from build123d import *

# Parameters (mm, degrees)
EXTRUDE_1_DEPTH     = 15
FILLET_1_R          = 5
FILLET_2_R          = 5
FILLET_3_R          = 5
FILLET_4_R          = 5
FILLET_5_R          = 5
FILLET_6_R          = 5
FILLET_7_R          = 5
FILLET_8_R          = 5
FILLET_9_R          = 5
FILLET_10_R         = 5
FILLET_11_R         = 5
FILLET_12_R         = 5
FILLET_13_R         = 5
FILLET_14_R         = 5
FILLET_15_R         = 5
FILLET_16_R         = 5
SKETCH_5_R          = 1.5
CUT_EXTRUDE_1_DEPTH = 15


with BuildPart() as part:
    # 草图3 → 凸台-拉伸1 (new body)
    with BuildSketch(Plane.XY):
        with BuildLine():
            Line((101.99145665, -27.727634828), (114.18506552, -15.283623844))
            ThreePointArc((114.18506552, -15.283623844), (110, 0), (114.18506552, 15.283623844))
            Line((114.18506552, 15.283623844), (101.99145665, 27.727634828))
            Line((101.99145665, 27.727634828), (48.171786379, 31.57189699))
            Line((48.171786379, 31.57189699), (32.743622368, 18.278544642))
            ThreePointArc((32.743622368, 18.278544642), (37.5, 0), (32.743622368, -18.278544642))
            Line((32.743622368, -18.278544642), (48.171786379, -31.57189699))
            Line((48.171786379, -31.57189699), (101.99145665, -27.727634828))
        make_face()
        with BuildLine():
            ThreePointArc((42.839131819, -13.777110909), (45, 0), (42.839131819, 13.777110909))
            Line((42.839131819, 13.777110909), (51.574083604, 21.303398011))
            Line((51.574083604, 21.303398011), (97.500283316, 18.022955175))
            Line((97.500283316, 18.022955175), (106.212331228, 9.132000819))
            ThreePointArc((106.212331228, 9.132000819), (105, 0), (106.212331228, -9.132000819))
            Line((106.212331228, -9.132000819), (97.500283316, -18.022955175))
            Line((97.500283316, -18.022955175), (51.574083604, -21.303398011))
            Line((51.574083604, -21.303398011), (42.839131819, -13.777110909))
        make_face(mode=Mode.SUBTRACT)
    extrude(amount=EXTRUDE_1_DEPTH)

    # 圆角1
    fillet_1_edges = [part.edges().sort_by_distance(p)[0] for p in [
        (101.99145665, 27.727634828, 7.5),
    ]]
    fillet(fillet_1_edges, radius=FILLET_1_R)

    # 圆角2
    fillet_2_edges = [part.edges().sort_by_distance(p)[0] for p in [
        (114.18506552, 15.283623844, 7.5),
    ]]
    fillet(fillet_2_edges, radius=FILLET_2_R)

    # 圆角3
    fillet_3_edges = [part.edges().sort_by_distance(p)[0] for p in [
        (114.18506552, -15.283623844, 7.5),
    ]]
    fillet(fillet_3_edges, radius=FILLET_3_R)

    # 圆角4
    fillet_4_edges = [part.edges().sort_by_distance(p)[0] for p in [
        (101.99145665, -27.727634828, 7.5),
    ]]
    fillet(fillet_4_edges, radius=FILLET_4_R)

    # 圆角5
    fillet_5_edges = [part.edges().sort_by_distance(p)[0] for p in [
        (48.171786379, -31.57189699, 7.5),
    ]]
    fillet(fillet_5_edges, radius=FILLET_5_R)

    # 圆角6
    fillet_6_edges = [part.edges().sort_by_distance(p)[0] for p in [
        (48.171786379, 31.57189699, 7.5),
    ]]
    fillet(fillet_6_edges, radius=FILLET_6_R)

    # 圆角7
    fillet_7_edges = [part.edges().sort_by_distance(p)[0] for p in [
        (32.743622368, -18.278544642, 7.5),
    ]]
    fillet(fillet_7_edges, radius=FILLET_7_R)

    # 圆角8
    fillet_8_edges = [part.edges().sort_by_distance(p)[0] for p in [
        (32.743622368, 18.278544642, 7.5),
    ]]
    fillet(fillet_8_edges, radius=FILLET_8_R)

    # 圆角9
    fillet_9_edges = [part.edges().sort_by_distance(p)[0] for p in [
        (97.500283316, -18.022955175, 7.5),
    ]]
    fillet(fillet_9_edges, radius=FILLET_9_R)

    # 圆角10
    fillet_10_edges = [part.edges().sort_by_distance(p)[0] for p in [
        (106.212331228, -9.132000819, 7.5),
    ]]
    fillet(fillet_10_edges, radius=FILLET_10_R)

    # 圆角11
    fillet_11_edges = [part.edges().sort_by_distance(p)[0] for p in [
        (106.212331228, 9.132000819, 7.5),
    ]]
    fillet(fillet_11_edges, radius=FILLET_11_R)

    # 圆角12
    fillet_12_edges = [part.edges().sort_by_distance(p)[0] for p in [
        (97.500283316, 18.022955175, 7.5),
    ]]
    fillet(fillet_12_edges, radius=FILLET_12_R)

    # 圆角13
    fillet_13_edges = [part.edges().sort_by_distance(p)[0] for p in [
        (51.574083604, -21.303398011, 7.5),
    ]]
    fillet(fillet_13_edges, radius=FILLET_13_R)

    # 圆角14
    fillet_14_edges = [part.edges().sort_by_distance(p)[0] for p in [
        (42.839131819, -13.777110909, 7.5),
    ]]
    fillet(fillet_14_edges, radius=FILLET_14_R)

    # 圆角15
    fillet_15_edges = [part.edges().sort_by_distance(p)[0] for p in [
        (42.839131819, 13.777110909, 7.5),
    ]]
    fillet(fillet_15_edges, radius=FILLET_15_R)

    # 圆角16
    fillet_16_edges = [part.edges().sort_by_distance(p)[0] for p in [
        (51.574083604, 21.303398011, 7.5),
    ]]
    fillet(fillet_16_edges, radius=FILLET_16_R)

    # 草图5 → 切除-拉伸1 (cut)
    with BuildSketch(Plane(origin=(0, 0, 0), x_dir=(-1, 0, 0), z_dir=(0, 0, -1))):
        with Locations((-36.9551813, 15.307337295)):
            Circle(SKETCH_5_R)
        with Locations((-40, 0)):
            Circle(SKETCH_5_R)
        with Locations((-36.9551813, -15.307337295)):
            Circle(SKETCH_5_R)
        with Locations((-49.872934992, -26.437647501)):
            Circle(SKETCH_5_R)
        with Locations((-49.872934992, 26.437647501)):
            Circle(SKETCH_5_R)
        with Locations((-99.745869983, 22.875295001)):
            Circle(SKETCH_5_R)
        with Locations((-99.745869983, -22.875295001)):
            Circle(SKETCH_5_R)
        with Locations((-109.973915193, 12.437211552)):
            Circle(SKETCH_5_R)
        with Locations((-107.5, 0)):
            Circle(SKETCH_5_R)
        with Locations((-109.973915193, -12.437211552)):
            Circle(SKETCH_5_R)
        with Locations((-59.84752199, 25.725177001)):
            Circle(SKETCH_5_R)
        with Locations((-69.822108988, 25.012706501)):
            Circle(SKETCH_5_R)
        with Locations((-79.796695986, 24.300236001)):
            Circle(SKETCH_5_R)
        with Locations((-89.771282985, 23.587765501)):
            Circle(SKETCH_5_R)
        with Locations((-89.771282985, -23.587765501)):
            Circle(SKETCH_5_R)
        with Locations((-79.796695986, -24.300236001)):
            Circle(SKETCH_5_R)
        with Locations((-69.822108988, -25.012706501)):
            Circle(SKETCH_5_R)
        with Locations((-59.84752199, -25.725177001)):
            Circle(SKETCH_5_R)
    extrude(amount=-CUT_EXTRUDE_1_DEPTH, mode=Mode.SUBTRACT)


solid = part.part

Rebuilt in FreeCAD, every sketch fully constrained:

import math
import FreeCAD as App
import Part
import Sketcher

V = App.Vector
Q = App.Units.Quantity


def edges_at(feature, points):
    """Names of the edges that pass closest to the given points."""
    edges = feature.Shape.Edges
    near = lambda p: min(range(len(edges)), key=lambda i: edges[i].distToShape(Part.Vertex(*p))[0])
    return sorted({f"Edge{near(p) + 1}" for p in points})

doc = App.newDocument("Part")
body = doc.addObject("PartDesign::Body", "Body")

# Sketch on XY plane
sketch1 = doc.addObject("Sketcher::SketchObject", "Sketch")
body.addObject(sketch1)
sketch1.AttachmentSupport = (doc.XY_Plane, [""])
sketch1.MapMode = "FlatFace"
sketch1.addGeometry([
    Part.LineSegment(V(102, -28, 0), V(114, -15, 0)),  # 0
    Part.ArcOfCircle(Part.Circle(V(140, 0, 0), V(0, 0, 1), 30), math.radians(149), math.radians(211)),  # 1
    Part.LineSegment(V(114, 15, 0), V(102, 28, 0)),  # 2
    Part.LineSegment(V(102, 28, 0), V(48, 32, 0)),  # 3
    Part.LineSegment(V(48, 32, 0), V(33, 18, 0)),  # 4
    Part.ArcOfCircle(Part.Circle(V(0, 0, 0), V(0, 0, 1), 38), math.radians(-29), math.radians(29)),  # 5
    Part.LineSegment(V(33, -18, 0), V(48, -32, 0)),  # 6
    Part.LineSegment(V(48, -32, 0), V(102, -28, 0)),  # 7
    Part.LineSegment(V(52, -21, 0), V(43, -14, 0)),  # 8
    Part.ArcOfCircle(Part.Circle(V(0, 0, 0), V(0, 0, 1), 45), math.radians(-18), math.radians(18)),  # 9
    Part.LineSegment(V(43, 14, 0), V(52, 21, 0)),  # 10
    Part.LineSegment(V(52, 21, 0), V(98, 18, 0)),  # 11
    Part.LineSegment(V(98, 18, 0), V(106, 9, 0)),  # 12
    Part.ArcOfCircle(Part.Circle(V(140, 0, 0), V(0, 0, 1), 35), math.radians(165), math.radians(195)),  # 13
    Part.LineSegment(V(106, -9, 0), V(98, -18, 0)),  # 14
    Part.LineSegment(V(98, -18, 0), V(52, -21, 0)),  # 15
], False)
sketch1.addConstraint([
    Sketcher.Constraint("Coincident", 0, 2, 1, 2),
    Sketcher.Constraint("Coincident", 1, 1, 2, 1),
    Sketcher.Constraint("Coincident", 2, 2, 3, 1),
    Sketcher.Constraint("Coincident", 3, 2, 4, 1),
    Sketcher.Constraint("Coincident", 4, 2, 5, 2),
    Sketcher.Constraint("Coincident", 5, 1, 6, 1),
    Sketcher.Constraint("Coincident", 6, 2, 7, 1),
    Sketcher.Constraint("Coincident", 7, 2, 0, 1),
    Sketcher.Constraint("Coincident", 8, 2, 9, 1),
    Sketcher.Constraint("Coincident", 9, 2, 10, 1),
    Sketcher.Constraint("Coincident", 10, 2, 11, 1),
    Sketcher.Constraint("Coincident", 11, 2, 12, 1),
    Sketcher.Constraint("Coincident", 12, 2, 13, 1),
    Sketcher.Constraint("Coincident", 13, 2, 14, 1),
    Sketcher.Constraint("Coincident", 14, 2, 15, 1),
    Sketcher.Constraint("Coincident", 15, 2, 8, 1),
    Sketcher.Constraint("Coincident", 5, 3, -1, 1),
    Sketcher.Constraint("Coincident", 9, 3, -1, 1),
    Sketcher.Constraint("Coincident", 13, 3, 1, 3),
    Sketcher.Constraint("Symmetric", 0, 2, 1, 1, -1),
    Sketcher.Constraint("Symmetric", 3, 2, 6, 2, -1),
    Sketcher.Constraint("Symmetric", 2, 2, 7, 2, -1),
    Sketcher.Constraint("Symmetric", 11, 2, 14, 2, -1),
    Sketcher.Constraint("Symmetric", 10, 2, 15, 2, -1),
    Sketcher.Constraint("Parallel", 6, 8),
    Sketcher.Constraint("Parallel", 4, 10),
    Sketcher.Constraint("Parallel", 3, 11),
    Sketcher.Constraint("Parallel", 2, 12),
    Sketcher.Constraint("Parallel", 0, 14),
    Sketcher.Constraint("Vertical", 4, 2, 5, 1),
    Sketcher.Constraint("Radius", 1, Q("30 mm")),
    Sketcher.Constraint("Radius", 9, Q("45 mm")),
    Sketcher.Constraint("Radius", 13, Q("35 mm")),
    Sketcher.Constraint("Radius", 5, Q("37.5 mm")),
    Sketcher.Constraint("DistanceX", -1, 1, 1, 3, Q("140 mm")),
    Sketcher.Constraint("DistanceY", -1, 1, 12, 2, Q("9.132001 mm")),
    Sketcher.Constraint("DistanceY", -1, 1, 10, 2, Q("21.303398 mm")),
    Sketcher.Constraint("DistanceY", 10, 2, 3, 2, Q("10.268499 mm")),
    Sketcher.Constraint("DistanceX", 10, 2, 11, 2, Q("45.9262 mm")),
    Sketcher.Constraint("Distance", 3, Q("53.956791 mm")),
    Sketcher.Constraint("Distance", 8, Q("11.530151 mm")),
    Sketcher.Constraint("Distance", 11, Q("46.043209 mm")),
    Sketcher.Constraint("DistanceX", -1, 1, 8, 2, Q("42.839132 mm")),
    Sketcher.Constraint("DistanceX", 2, 2, 1, 1, Q("12.193609 mm")),
])
pad1 = doc.addObject("PartDesign::Pad", "Pad")
body.addObject(pad1)
pad1.Profile = sketch1
pad1.Length = 15
doc.recompute()

fillet = doc.addObject("PartDesign::Fillet", "Fillet")
body.addObject(fillet)
fillet.Base = (pad1, edges_at(pad1, [(101.991, 27.728, 7.5)]))
fillet.Radius = 5
doc.recompute()

fillet2 = doc.addObject("PartDesign::Fillet", "Fillet001")
body.addObject(fillet2)
fillet2.Base = (fillet, edges_at(fillet, [(114.185, 15.284, 7.5)]))
fillet2.Radius = 5
doc.recompute()

fillet3 = doc.addObject("PartDesign::Fillet", "Fillet002")
body.addObject(fillet3)
fillet3.Base = (fillet2, edges_at(fillet2, [(114.185, -15.284, 7.5)]))
fillet3.Radius = 5
doc.recompute()

fillet4 = doc.addObject("PartDesign::Fillet", "Fillet003")
body.addObject(fillet4)
fillet4.Base = (fillet3, edges_at(fillet3, [(101.991, -27.728, 7.5)]))
fillet4.Radius = 5
doc.recompute()

fillet5 = doc.addObject("PartDesign::Fillet", "Fillet004")
body.addObject(fillet5)
fillet5.Base = (fillet4, edges_at(fillet4, [(48.172, -31.572, 7.5)]))
fillet5.Radius = 5
doc.recompute()

fillet6 = doc.addObject("PartDesign::Fillet", "Fillet005")
body.addObject(fillet6)
fillet6.Base = (fillet5, edges_at(fillet5, [(48.172, 31.572, 7.5)]))
fillet6.Radius = 5
doc.recompute()

fillet7 = doc.addObject("PartDesign::Fillet", "Fillet006")
body.addObject(fillet7)
fillet7.Base = (fillet6, edges_at(fillet6, [(32.744, -18.279, 7.5)]))
fillet7.Radius = 5
doc.recompute()

fillet8 = doc.addObject("PartDesign::Fillet", "Fillet007")
body.addObject(fillet8)
fillet8.Base = (fillet7, edges_at(fillet7, [(32.744, 18.279, 7.5)]))
fillet8.Radius = 5
doc.recompute()

fillet9 = doc.addObject("PartDesign::Fillet", "Fillet008")
body.addObject(fillet9)
fillet9.Base = (fillet8, edges_at(fillet8, [(97.5, -18.023, 7.5)]))
fillet9.Radius = 5
doc.recompute()

fillet10 = doc.addObject("PartDesign::Fillet", "Fillet009")
body.addObject(fillet10)
fillet10.Base = (fillet9, edges_at(fillet9, [(106.212, -9.132, 7.5)]))
fillet10.Radius = 5
doc.recompute()

fillet11 = doc.addObject("PartDesign::Fillet", "Fillet010")
body.addObject(fillet11)
fillet11.Base = (fillet10, edges_at(fillet10, [(106.212, 9.132, 7.5)]))
fillet11.Radius = 5
doc.recompute()

fillet12 = doc.addObject("PartDesign::Fillet", "Fillet011")
body.addObject(fillet12)
fillet12.Base = (fillet11, edges_at(fillet11, [(97.5, 18.023, 7.5)]))
fillet12.Radius = 5
doc.recompute()

fillet13 = doc.addObject("PartDesign::Fillet", "Fillet012")
body.addObject(fillet13)
fillet13.Base = (fillet12, edges_at(fillet12, [(51.574, -21.303, 7.5)]))
fillet13.Radius = 5
doc.recompute()

fillet14 = doc.addObject("PartDesign::Fillet", "Fillet013")
body.addObject(fillet14)
fillet14.Base = (fillet13, edges_at(fillet13, [(42.839, -13.777, 7.5)]))
fillet14.Radius = 5
doc.recompute()

fillet15 = doc.addObject("PartDesign::Fillet", "Fillet014")
body.addObject(fillet15)
fillet15.Base = (fillet14, edges_at(fillet14, [(42.839, 13.777, 7.5)]))
fillet15.Radius = 5
doc.recompute()

fillet16 = doc.addObject("PartDesign::Fillet", "Fillet015")
body.addObject(fillet16)
fillet16.Base = (fillet15, edges_at(fillet15, [(51.574, 21.303, 7.5)]))
fillet16.Radius = 5

# Sketch on XY plane
sketch2 = doc.addObject("Sketcher::SketchObject", "Sketch001")
body.addObject(sketch2)
sketch2.AttachmentSupport = (doc.XY_Plane, [""])
sketch2.MapMode = "FlatFace"
sketch2.addGeometry([
    Part.Circle(V(37, 15.3, 0), V(0, 0, 1), 1.5),  # 0
    Part.Circle(V(40, 0, 0), V(0, 0, 1), 1.5),  # 1
    Part.Circle(V(37, -15.3, 0), V(0, 0, 1), 1.5),  # 2
    Part.Circle(V(49.9, -26.4, 0), V(0, 0, 1), 1.5),  # 3
    Part.Circle(V(49.9, 26.4, 0), V(0, 0, 1), 1.5),  # 4
    Part.Circle(V(99.7, 22.9, 0), V(0, 0, 1), 1.5),  # 5
    Part.Circle(V(99.7, -22.9, 0), V(0, 0, 1), 1.5),  # 6
    Part.Circle(V(110, 12.4, 0), V(0, 0, 1), 1.5),  # 7
    Part.Circle(V(107.5, 0, 0), V(0, 0, 1), 1.5),  # 8
    Part.Circle(V(110, -12.4, 0), V(0, 0, 1), 1.5),  # 9
    Part.Circle(V(59.8, 25.7, 0), V(0, 0, 1), 1.5),  # 10
    Part.Circle(V(69.8, 25, 0), V(0, 0, 1), 1.5),  # 11
    Part.Circle(V(79.8, 24.3, 0), V(0, 0, 1), 1.5),  # 12
    Part.Circle(V(89.8, 23.6, 0), V(0, 0, 1), 1.5),  # 13
    Part.Circle(V(89.8, -23.6, 0), V(0, 0, 1), 1.5),  # 14
    Part.Circle(V(79.8, -24.3, 0), V(0, 0, 1), 1.5),  # 15
    Part.Circle(V(69.8, -25, 0), V(0, 0, 1), 1.5),  # 16
    Part.Circle(V(59.8, -25.7, 0), V(0, 0, 1), 1.5),  # 17
], False)
sketch2.addConstraint([
    Sketcher.Constraint("Equal", 0, 1),
    Sketcher.Constraint("Equal", 1, 2),
    Sketcher.Constraint("Equal", 2, 3),
    Sketcher.Constraint("Equal", 3, 4),
    Sketcher.Constraint("Equal", 4, 5),
    Sketcher.Constraint("Equal", 5, 6),
    Sketcher.Constraint("Equal", 6, 7),
    Sketcher.Constraint("Equal", 7, 8),
    Sketcher.Constraint("Equal", 8, 9),
    Sketcher.Constraint("Equal", 9, 10),
    Sketcher.Constraint("Equal", 10, 11),
    Sketcher.Constraint("Equal", 11, 12),
    Sketcher.Constraint("Equal", 12, 13),
    Sketcher.Constraint("Equal", 13, 14),
    Sketcher.Constraint("Equal", 14, 15),
    Sketcher.Constraint("Equal", 15, 16),
    Sketcher.Constraint("Equal", 16, 17),
    Sketcher.Constraint("Symmetric", 0, 3, 2, 3, -1),
    Sketcher.Constraint("Symmetric", 3, 3, 4, 3, -1),
    Sketcher.Constraint("Symmetric", 5, 3, 6, 3, -1),
    Sketcher.Constraint("Symmetric", 7, 3, 9, 3, -1),
    Sketcher.Constraint("Symmetric", 13, 3, 14, 3, -1),
    Sketcher.Constraint("Symmetric", 12, 3, 15, 3, -1),
    Sketcher.Constraint("Symmetric", 11, 3, 16, 3, -1),
    Sketcher.Constraint("Symmetric", 10, 3, 17, 3, -1),
    Sketcher.Constraint("PointOnObject", 1, 3, -1),
    Sketcher.Constraint("PointOnObject", 8, 3, -1),
    Sketcher.Constraint("Diameter", 0, Q("3 mm")),
    Sketcher.Constraint("DistanceX", -1, 1, 1, 3, Q("40 mm")),
    Sketcher.Constraint("DistanceX", -1, 1, 8, 3, Q("107.5 mm")),
    Sketcher.Constraint("DistanceX", -1, 1, 0, 3, Q("36.955181 mm")),
    Sketcher.Constraint("DistanceX", -1, 1, 5, 3, Q("99.74587 mm")),
    Sketcher.Constraint("DistanceY", -1, 1, 7, 3, Q("12.437212 mm")),
    Sketcher.Constraint("DistanceX", -1, 1, 10, 3, Q("59.847522 mm")),
    Sketcher.Constraint("DistanceX", -1, 1, 11, 3, Q("69.822109 mm")),
    Sketcher.Constraint("DistanceY", 3, 3, 2, 3, Q("11.13031 mm")),
    Sketcher.Constraint("DistanceY", 6, 3, 5, 3, Q("45.75059 mm")),
    Sketcher.Constraint("DistanceX", 4, 3, 7, 3, Q("60.10098 mm")),
    Sketcher.Constraint("DistanceY", 3, 3, 7, 3, Q("38.874859 mm")),
    Sketcher.Constraint("DistanceY", 10, 3, 4, 3, Q("0.712471 mm")),
    Sketcher.Constraint("DistanceY", 11, 3, 10, 3, Q("0.71247 mm")),
    Sketcher.Constraint("DistanceY", 12, 3, 11, 3, Q("0.712471 mm")),
    Sketcher.Constraint("DistanceX", 4, 3, 12, 3, Q("29.923761 mm")),
    Sketcher.Constraint("DistanceY", 5, 3, 13, 3, Q("0.71247 mm")),
    Sketcher.Constraint("DistanceX", 17, 3, 14, 3, Q("29.923761 mm")),
    Sketcher.Constraint("DistanceX", -1, 1, 3, 3, Q("49.872935 mm")),
])
pocket1 = doc.addObject("PartDesign::Pocket", "Pocket")
body.addObject(pocket1)
pocket1.Profile = sketch2
pocket1.Length = 15
pocket1.Reversed = True

doc.recompute()
